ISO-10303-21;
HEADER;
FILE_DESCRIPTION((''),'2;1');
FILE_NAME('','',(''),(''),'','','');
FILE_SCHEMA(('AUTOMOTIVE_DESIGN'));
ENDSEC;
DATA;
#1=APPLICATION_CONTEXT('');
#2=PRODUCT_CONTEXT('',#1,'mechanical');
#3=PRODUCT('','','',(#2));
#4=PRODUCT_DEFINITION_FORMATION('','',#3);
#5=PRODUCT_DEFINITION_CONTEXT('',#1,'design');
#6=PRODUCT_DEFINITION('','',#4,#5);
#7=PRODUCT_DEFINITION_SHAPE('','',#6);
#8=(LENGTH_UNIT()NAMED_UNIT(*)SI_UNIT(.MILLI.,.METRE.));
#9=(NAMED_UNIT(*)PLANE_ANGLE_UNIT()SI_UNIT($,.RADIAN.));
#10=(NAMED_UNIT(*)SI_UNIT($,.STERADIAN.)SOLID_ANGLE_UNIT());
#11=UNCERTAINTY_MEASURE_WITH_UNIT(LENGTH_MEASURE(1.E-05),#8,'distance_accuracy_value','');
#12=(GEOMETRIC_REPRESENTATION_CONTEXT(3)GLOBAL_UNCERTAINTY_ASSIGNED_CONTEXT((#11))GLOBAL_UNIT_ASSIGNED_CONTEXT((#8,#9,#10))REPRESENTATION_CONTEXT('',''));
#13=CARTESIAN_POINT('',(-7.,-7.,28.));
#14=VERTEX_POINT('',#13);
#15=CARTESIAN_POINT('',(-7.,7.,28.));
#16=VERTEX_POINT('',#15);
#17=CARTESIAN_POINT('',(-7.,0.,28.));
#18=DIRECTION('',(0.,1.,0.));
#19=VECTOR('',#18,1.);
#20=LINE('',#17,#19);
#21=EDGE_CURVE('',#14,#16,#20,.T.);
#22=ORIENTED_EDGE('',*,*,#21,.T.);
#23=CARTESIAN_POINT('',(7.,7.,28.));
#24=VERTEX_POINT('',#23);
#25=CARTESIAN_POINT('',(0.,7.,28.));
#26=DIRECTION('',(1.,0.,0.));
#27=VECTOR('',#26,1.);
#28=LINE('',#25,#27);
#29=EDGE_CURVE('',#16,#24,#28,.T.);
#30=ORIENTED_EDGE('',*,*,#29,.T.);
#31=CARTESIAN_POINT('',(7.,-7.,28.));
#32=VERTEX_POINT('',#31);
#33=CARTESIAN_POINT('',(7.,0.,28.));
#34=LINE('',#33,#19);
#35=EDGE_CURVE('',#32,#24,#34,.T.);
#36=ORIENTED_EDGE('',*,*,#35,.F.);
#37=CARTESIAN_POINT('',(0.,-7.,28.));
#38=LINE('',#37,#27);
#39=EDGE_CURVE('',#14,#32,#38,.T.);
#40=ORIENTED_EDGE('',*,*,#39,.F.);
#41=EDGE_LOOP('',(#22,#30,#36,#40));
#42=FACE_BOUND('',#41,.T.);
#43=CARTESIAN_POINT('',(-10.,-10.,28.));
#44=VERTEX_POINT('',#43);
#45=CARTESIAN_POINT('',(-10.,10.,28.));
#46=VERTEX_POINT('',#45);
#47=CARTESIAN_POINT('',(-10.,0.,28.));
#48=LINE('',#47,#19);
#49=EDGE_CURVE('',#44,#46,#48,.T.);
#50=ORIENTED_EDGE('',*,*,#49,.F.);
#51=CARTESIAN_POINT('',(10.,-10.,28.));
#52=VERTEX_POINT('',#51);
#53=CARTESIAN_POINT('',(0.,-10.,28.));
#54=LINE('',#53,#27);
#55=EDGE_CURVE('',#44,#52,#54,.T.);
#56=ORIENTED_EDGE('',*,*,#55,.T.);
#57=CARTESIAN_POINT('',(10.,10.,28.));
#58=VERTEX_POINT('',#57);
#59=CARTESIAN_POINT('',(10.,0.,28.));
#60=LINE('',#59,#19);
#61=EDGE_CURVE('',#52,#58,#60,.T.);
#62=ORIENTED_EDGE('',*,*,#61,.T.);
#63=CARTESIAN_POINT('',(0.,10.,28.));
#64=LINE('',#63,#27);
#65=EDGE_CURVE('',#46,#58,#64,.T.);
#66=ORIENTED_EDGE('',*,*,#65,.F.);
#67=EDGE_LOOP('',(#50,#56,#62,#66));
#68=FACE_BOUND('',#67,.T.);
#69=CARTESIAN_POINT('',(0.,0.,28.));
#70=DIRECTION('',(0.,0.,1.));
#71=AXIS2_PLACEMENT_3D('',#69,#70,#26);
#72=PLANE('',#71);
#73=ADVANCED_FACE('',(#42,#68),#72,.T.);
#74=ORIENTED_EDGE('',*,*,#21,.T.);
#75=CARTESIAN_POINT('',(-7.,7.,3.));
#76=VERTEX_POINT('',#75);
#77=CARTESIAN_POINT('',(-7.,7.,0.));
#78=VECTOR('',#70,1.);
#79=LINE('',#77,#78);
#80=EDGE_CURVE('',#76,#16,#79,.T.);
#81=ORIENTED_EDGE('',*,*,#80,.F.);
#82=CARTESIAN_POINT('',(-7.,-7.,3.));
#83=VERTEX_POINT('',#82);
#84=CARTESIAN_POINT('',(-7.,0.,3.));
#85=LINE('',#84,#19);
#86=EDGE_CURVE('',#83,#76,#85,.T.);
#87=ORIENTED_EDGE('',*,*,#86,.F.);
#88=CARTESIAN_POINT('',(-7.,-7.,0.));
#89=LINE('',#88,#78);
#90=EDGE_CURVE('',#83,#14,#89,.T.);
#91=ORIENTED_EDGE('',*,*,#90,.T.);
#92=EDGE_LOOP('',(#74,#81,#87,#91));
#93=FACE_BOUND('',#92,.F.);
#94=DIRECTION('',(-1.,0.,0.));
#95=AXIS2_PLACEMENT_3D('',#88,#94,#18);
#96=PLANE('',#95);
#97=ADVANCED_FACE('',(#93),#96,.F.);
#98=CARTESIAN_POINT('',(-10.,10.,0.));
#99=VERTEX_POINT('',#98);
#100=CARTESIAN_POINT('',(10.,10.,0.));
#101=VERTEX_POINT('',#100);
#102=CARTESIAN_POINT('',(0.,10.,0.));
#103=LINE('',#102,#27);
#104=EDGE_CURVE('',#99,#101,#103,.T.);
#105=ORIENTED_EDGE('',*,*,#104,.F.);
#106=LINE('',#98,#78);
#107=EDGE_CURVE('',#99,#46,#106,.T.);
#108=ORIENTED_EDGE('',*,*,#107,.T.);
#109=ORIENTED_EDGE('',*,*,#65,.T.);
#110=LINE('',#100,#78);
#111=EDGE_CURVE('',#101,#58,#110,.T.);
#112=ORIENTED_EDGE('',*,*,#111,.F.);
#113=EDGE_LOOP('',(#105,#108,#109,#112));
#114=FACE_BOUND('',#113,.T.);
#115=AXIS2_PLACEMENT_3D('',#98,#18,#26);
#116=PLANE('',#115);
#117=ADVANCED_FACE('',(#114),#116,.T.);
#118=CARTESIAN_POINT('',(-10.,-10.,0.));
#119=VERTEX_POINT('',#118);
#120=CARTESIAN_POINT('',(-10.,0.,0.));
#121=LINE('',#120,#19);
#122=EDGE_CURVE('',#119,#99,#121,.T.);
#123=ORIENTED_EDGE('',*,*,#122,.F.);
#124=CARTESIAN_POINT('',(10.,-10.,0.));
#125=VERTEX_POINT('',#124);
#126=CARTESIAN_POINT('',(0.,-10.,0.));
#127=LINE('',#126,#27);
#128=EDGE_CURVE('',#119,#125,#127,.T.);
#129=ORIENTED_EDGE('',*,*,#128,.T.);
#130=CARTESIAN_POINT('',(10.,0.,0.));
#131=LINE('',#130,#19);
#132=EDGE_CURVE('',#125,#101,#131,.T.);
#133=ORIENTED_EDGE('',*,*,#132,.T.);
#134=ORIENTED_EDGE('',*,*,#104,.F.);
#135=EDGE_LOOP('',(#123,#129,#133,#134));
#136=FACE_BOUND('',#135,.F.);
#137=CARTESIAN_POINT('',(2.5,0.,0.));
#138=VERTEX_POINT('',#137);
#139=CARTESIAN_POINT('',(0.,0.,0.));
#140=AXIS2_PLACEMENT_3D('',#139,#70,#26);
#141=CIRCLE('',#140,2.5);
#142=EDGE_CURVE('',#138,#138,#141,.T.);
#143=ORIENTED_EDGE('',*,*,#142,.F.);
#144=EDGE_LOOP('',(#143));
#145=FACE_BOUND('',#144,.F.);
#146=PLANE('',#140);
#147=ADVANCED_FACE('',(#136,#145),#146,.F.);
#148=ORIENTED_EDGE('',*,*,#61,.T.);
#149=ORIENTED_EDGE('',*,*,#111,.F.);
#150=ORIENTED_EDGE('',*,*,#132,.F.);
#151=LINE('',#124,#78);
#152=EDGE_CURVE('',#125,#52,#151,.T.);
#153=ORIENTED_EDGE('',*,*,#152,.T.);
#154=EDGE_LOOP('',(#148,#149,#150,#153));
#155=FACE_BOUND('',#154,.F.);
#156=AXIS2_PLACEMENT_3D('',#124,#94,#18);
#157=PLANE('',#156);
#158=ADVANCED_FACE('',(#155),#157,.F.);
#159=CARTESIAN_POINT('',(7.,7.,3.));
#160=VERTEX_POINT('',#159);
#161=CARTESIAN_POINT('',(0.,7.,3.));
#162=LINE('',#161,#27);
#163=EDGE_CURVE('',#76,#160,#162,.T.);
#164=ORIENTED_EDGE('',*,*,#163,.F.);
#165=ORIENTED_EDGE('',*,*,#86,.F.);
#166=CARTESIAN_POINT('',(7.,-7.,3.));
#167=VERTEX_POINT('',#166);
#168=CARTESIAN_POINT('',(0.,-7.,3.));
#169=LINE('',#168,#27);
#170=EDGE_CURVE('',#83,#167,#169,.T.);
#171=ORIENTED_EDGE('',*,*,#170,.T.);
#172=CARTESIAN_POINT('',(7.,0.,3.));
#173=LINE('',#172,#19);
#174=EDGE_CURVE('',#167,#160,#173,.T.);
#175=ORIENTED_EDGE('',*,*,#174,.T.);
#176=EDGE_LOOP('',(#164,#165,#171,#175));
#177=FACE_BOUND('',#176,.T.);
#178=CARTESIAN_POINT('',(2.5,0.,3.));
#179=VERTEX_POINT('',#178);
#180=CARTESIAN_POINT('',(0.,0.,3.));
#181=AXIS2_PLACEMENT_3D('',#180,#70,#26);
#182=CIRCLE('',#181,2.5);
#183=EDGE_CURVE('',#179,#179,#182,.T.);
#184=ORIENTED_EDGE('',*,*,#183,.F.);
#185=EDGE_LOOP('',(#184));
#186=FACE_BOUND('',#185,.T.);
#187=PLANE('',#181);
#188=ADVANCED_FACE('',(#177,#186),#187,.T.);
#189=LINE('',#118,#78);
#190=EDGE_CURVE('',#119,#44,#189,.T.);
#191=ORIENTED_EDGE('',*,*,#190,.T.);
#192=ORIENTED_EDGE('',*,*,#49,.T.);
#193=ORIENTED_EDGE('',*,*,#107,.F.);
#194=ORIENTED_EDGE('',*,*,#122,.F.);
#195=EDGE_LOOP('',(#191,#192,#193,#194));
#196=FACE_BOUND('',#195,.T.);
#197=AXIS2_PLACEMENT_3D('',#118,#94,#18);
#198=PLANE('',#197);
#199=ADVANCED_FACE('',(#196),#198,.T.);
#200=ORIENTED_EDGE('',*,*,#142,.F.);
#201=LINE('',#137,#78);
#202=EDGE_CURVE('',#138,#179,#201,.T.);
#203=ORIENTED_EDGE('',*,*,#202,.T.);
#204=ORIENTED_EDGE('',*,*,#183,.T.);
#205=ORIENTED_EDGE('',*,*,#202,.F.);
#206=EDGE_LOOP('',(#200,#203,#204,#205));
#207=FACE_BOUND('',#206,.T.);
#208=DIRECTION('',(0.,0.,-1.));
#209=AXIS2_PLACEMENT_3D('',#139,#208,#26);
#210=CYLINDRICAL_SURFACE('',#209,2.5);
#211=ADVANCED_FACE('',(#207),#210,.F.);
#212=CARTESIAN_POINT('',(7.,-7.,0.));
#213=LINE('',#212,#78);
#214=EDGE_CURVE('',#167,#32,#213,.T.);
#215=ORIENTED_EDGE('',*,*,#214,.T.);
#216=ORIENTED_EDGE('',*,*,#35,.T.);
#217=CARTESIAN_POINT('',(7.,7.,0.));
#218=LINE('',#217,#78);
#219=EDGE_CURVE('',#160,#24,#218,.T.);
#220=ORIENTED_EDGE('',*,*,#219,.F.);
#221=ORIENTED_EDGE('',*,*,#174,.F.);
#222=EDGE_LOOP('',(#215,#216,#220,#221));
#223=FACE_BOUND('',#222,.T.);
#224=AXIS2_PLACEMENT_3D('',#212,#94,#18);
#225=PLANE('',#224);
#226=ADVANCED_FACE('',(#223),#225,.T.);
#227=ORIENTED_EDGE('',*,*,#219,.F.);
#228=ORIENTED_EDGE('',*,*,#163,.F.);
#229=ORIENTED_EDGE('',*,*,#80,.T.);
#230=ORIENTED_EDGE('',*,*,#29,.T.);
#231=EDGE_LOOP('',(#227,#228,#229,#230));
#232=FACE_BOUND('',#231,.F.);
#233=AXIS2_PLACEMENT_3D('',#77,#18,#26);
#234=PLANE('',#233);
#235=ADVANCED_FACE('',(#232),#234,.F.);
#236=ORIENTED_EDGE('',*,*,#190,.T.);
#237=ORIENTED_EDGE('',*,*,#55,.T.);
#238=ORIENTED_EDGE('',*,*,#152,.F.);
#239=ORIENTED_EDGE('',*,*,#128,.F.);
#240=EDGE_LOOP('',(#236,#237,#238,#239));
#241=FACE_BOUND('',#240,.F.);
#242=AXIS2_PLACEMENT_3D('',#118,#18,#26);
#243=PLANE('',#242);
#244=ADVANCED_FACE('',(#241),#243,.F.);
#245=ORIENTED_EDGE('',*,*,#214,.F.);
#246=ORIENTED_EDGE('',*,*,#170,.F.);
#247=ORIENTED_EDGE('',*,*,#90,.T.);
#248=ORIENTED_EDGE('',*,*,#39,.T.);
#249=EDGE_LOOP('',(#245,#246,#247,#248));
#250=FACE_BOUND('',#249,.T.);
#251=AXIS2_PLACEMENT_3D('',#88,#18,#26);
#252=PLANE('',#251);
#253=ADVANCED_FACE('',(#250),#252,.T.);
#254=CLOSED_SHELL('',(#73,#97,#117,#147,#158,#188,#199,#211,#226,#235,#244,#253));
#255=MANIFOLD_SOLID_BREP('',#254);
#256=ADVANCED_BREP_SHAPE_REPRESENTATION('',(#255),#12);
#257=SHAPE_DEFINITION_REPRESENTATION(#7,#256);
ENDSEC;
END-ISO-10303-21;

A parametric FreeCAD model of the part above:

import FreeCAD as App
import Part
import Sketcher

V = App.Vector


def add_polygon(sketch, points):
    """Adds a closed chain of lines whose ends are joined by coincident constraints."""
    first, n = sketch.GeometryCount, len(points)
    for a, b in zip(points, points[1:] + points[:1]):
        sketch.addGeometry(Part.LineSegment(App.Vector(*a, 0), App.Vector(*b, 0)), False)
    for i in range(n):
        sketch.addConstraint(Sketcher.Constraint("Coincident", first + i, 2, first + (i + 1) % n, 1))

doc = App.newDocument("Part")
body = doc.addObject("PartDesign::Body", "Body")

# Sketch on XY plane
sketch1 = doc.addObject("Sketcher::SketchObject", "Sketch")
body.addObject(sketch1)
sketch1.AttachmentSupport = (doc.XY_Plane, [""])
sketch1.MapMode = "FlatFace"
add_polygon(sketch1, [(-10, 10), (-10, -10), (10, -10), (10, 10)])  # lines 0-3
add_polygon(sketch1, [(7, -7), (-7, -7), (-7, 7), (7, 7)])  # lines 4-7
sketch1.addConstraint(Sketcher.Constraint("Vertical", 0))
sketch1.addConstraint(Sketcher.Constraint("Horizontal", 1))
sketch1.addConstraint(Sketcher.Constraint("Vertical", 2))
sketch1.addConstraint(Sketcher.Constraint("Horizontal", 3))
sketch1.addConstraint(Sketcher.Constraint("Horizontal", 4))
sketch1.addConstraint(Sketcher.Constraint("Vertical", 5))
sketch1.addConstraint(Sketcher.Constraint("Horizontal", 6))
sketch1.addConstraint(Sketcher.Constraint("Vertical", 7))
sketch1.addConstraint(Sketcher.Constraint("Symmetric", 0, 2, 2, 2, -1, 1))
sketch1.addConstraint(Sketcher.Constraint("Symmetric", 4, 2, 6, 2, -1, 1))
sketch1.addConstraint(Sketcher.Constraint("Equal", 3, 0))
sketch1.addConstraint(Sketcher.Constraint("Equal", 6, 5))
sketch1.addConstraint(Sketcher.Constraint("DistanceX", 1, 1, 1, 2, 20.0))
sketch1.addConstraint(Sketcher.Constraint("DistanceX", 4, 2, 4, 1, 14.0))
pad1 = doc.addObject("PartDesign::Pad", "Pad")
body.addObject(pad1)
pad1.Profile = sketch1
pad1.Length = 28

# Sketch on XY plane
sketch2 = doc.addObject("Sketcher::SketchObject", "Sketch001")
body.addObject(sketch2)
sketch2.AttachmentSupport = (doc.XY_Plane, [""])
sketch2.MapMode = "FlatFace"
add_polygon(sketch2, [(-7, 7), (-7, -7), (7, -7), (7, 7)])  # lines 0-3
sketch2.addGeometry(Part.Circle(V(0, 0, 0), V(0, 0, 1), 2.5), False)  # 4
sketch2.addConstraint(Sketcher.Constraint("Vertical", 0))
sketch2.addConstraint(Sketcher.Constraint("Horizontal", 1))
sketch2.addConstraint(Sketcher.Constraint("Vertical", 2))
sketch2.addConstraint(Sketcher.Constraint("Horizontal", 3))
sketch2.addConstraint(Sketcher.Constraint("Coincident", 4, 3, -1, 1))
sketch2.addConstraint(Sketcher.Constraint("Symmetric", 0, 2, 2, 2, -1, 1))
sketch2.addConstraint(Sketcher.Constraint("Equal", 3, 0))
sketch2.addConstraint(Sketcher.Constraint("Diameter", 4, 5.0))
sketch2.addConstraint(Sketcher.Constraint("DistanceX", 1, 1, 1, 2, 14.0))
pad2 = doc.addObject("PartDesign::Pad", "Pad001")
body.addObject(pad2)
pad2.Profile = sketch2
pad2.Length = 3

doc.recompute()
